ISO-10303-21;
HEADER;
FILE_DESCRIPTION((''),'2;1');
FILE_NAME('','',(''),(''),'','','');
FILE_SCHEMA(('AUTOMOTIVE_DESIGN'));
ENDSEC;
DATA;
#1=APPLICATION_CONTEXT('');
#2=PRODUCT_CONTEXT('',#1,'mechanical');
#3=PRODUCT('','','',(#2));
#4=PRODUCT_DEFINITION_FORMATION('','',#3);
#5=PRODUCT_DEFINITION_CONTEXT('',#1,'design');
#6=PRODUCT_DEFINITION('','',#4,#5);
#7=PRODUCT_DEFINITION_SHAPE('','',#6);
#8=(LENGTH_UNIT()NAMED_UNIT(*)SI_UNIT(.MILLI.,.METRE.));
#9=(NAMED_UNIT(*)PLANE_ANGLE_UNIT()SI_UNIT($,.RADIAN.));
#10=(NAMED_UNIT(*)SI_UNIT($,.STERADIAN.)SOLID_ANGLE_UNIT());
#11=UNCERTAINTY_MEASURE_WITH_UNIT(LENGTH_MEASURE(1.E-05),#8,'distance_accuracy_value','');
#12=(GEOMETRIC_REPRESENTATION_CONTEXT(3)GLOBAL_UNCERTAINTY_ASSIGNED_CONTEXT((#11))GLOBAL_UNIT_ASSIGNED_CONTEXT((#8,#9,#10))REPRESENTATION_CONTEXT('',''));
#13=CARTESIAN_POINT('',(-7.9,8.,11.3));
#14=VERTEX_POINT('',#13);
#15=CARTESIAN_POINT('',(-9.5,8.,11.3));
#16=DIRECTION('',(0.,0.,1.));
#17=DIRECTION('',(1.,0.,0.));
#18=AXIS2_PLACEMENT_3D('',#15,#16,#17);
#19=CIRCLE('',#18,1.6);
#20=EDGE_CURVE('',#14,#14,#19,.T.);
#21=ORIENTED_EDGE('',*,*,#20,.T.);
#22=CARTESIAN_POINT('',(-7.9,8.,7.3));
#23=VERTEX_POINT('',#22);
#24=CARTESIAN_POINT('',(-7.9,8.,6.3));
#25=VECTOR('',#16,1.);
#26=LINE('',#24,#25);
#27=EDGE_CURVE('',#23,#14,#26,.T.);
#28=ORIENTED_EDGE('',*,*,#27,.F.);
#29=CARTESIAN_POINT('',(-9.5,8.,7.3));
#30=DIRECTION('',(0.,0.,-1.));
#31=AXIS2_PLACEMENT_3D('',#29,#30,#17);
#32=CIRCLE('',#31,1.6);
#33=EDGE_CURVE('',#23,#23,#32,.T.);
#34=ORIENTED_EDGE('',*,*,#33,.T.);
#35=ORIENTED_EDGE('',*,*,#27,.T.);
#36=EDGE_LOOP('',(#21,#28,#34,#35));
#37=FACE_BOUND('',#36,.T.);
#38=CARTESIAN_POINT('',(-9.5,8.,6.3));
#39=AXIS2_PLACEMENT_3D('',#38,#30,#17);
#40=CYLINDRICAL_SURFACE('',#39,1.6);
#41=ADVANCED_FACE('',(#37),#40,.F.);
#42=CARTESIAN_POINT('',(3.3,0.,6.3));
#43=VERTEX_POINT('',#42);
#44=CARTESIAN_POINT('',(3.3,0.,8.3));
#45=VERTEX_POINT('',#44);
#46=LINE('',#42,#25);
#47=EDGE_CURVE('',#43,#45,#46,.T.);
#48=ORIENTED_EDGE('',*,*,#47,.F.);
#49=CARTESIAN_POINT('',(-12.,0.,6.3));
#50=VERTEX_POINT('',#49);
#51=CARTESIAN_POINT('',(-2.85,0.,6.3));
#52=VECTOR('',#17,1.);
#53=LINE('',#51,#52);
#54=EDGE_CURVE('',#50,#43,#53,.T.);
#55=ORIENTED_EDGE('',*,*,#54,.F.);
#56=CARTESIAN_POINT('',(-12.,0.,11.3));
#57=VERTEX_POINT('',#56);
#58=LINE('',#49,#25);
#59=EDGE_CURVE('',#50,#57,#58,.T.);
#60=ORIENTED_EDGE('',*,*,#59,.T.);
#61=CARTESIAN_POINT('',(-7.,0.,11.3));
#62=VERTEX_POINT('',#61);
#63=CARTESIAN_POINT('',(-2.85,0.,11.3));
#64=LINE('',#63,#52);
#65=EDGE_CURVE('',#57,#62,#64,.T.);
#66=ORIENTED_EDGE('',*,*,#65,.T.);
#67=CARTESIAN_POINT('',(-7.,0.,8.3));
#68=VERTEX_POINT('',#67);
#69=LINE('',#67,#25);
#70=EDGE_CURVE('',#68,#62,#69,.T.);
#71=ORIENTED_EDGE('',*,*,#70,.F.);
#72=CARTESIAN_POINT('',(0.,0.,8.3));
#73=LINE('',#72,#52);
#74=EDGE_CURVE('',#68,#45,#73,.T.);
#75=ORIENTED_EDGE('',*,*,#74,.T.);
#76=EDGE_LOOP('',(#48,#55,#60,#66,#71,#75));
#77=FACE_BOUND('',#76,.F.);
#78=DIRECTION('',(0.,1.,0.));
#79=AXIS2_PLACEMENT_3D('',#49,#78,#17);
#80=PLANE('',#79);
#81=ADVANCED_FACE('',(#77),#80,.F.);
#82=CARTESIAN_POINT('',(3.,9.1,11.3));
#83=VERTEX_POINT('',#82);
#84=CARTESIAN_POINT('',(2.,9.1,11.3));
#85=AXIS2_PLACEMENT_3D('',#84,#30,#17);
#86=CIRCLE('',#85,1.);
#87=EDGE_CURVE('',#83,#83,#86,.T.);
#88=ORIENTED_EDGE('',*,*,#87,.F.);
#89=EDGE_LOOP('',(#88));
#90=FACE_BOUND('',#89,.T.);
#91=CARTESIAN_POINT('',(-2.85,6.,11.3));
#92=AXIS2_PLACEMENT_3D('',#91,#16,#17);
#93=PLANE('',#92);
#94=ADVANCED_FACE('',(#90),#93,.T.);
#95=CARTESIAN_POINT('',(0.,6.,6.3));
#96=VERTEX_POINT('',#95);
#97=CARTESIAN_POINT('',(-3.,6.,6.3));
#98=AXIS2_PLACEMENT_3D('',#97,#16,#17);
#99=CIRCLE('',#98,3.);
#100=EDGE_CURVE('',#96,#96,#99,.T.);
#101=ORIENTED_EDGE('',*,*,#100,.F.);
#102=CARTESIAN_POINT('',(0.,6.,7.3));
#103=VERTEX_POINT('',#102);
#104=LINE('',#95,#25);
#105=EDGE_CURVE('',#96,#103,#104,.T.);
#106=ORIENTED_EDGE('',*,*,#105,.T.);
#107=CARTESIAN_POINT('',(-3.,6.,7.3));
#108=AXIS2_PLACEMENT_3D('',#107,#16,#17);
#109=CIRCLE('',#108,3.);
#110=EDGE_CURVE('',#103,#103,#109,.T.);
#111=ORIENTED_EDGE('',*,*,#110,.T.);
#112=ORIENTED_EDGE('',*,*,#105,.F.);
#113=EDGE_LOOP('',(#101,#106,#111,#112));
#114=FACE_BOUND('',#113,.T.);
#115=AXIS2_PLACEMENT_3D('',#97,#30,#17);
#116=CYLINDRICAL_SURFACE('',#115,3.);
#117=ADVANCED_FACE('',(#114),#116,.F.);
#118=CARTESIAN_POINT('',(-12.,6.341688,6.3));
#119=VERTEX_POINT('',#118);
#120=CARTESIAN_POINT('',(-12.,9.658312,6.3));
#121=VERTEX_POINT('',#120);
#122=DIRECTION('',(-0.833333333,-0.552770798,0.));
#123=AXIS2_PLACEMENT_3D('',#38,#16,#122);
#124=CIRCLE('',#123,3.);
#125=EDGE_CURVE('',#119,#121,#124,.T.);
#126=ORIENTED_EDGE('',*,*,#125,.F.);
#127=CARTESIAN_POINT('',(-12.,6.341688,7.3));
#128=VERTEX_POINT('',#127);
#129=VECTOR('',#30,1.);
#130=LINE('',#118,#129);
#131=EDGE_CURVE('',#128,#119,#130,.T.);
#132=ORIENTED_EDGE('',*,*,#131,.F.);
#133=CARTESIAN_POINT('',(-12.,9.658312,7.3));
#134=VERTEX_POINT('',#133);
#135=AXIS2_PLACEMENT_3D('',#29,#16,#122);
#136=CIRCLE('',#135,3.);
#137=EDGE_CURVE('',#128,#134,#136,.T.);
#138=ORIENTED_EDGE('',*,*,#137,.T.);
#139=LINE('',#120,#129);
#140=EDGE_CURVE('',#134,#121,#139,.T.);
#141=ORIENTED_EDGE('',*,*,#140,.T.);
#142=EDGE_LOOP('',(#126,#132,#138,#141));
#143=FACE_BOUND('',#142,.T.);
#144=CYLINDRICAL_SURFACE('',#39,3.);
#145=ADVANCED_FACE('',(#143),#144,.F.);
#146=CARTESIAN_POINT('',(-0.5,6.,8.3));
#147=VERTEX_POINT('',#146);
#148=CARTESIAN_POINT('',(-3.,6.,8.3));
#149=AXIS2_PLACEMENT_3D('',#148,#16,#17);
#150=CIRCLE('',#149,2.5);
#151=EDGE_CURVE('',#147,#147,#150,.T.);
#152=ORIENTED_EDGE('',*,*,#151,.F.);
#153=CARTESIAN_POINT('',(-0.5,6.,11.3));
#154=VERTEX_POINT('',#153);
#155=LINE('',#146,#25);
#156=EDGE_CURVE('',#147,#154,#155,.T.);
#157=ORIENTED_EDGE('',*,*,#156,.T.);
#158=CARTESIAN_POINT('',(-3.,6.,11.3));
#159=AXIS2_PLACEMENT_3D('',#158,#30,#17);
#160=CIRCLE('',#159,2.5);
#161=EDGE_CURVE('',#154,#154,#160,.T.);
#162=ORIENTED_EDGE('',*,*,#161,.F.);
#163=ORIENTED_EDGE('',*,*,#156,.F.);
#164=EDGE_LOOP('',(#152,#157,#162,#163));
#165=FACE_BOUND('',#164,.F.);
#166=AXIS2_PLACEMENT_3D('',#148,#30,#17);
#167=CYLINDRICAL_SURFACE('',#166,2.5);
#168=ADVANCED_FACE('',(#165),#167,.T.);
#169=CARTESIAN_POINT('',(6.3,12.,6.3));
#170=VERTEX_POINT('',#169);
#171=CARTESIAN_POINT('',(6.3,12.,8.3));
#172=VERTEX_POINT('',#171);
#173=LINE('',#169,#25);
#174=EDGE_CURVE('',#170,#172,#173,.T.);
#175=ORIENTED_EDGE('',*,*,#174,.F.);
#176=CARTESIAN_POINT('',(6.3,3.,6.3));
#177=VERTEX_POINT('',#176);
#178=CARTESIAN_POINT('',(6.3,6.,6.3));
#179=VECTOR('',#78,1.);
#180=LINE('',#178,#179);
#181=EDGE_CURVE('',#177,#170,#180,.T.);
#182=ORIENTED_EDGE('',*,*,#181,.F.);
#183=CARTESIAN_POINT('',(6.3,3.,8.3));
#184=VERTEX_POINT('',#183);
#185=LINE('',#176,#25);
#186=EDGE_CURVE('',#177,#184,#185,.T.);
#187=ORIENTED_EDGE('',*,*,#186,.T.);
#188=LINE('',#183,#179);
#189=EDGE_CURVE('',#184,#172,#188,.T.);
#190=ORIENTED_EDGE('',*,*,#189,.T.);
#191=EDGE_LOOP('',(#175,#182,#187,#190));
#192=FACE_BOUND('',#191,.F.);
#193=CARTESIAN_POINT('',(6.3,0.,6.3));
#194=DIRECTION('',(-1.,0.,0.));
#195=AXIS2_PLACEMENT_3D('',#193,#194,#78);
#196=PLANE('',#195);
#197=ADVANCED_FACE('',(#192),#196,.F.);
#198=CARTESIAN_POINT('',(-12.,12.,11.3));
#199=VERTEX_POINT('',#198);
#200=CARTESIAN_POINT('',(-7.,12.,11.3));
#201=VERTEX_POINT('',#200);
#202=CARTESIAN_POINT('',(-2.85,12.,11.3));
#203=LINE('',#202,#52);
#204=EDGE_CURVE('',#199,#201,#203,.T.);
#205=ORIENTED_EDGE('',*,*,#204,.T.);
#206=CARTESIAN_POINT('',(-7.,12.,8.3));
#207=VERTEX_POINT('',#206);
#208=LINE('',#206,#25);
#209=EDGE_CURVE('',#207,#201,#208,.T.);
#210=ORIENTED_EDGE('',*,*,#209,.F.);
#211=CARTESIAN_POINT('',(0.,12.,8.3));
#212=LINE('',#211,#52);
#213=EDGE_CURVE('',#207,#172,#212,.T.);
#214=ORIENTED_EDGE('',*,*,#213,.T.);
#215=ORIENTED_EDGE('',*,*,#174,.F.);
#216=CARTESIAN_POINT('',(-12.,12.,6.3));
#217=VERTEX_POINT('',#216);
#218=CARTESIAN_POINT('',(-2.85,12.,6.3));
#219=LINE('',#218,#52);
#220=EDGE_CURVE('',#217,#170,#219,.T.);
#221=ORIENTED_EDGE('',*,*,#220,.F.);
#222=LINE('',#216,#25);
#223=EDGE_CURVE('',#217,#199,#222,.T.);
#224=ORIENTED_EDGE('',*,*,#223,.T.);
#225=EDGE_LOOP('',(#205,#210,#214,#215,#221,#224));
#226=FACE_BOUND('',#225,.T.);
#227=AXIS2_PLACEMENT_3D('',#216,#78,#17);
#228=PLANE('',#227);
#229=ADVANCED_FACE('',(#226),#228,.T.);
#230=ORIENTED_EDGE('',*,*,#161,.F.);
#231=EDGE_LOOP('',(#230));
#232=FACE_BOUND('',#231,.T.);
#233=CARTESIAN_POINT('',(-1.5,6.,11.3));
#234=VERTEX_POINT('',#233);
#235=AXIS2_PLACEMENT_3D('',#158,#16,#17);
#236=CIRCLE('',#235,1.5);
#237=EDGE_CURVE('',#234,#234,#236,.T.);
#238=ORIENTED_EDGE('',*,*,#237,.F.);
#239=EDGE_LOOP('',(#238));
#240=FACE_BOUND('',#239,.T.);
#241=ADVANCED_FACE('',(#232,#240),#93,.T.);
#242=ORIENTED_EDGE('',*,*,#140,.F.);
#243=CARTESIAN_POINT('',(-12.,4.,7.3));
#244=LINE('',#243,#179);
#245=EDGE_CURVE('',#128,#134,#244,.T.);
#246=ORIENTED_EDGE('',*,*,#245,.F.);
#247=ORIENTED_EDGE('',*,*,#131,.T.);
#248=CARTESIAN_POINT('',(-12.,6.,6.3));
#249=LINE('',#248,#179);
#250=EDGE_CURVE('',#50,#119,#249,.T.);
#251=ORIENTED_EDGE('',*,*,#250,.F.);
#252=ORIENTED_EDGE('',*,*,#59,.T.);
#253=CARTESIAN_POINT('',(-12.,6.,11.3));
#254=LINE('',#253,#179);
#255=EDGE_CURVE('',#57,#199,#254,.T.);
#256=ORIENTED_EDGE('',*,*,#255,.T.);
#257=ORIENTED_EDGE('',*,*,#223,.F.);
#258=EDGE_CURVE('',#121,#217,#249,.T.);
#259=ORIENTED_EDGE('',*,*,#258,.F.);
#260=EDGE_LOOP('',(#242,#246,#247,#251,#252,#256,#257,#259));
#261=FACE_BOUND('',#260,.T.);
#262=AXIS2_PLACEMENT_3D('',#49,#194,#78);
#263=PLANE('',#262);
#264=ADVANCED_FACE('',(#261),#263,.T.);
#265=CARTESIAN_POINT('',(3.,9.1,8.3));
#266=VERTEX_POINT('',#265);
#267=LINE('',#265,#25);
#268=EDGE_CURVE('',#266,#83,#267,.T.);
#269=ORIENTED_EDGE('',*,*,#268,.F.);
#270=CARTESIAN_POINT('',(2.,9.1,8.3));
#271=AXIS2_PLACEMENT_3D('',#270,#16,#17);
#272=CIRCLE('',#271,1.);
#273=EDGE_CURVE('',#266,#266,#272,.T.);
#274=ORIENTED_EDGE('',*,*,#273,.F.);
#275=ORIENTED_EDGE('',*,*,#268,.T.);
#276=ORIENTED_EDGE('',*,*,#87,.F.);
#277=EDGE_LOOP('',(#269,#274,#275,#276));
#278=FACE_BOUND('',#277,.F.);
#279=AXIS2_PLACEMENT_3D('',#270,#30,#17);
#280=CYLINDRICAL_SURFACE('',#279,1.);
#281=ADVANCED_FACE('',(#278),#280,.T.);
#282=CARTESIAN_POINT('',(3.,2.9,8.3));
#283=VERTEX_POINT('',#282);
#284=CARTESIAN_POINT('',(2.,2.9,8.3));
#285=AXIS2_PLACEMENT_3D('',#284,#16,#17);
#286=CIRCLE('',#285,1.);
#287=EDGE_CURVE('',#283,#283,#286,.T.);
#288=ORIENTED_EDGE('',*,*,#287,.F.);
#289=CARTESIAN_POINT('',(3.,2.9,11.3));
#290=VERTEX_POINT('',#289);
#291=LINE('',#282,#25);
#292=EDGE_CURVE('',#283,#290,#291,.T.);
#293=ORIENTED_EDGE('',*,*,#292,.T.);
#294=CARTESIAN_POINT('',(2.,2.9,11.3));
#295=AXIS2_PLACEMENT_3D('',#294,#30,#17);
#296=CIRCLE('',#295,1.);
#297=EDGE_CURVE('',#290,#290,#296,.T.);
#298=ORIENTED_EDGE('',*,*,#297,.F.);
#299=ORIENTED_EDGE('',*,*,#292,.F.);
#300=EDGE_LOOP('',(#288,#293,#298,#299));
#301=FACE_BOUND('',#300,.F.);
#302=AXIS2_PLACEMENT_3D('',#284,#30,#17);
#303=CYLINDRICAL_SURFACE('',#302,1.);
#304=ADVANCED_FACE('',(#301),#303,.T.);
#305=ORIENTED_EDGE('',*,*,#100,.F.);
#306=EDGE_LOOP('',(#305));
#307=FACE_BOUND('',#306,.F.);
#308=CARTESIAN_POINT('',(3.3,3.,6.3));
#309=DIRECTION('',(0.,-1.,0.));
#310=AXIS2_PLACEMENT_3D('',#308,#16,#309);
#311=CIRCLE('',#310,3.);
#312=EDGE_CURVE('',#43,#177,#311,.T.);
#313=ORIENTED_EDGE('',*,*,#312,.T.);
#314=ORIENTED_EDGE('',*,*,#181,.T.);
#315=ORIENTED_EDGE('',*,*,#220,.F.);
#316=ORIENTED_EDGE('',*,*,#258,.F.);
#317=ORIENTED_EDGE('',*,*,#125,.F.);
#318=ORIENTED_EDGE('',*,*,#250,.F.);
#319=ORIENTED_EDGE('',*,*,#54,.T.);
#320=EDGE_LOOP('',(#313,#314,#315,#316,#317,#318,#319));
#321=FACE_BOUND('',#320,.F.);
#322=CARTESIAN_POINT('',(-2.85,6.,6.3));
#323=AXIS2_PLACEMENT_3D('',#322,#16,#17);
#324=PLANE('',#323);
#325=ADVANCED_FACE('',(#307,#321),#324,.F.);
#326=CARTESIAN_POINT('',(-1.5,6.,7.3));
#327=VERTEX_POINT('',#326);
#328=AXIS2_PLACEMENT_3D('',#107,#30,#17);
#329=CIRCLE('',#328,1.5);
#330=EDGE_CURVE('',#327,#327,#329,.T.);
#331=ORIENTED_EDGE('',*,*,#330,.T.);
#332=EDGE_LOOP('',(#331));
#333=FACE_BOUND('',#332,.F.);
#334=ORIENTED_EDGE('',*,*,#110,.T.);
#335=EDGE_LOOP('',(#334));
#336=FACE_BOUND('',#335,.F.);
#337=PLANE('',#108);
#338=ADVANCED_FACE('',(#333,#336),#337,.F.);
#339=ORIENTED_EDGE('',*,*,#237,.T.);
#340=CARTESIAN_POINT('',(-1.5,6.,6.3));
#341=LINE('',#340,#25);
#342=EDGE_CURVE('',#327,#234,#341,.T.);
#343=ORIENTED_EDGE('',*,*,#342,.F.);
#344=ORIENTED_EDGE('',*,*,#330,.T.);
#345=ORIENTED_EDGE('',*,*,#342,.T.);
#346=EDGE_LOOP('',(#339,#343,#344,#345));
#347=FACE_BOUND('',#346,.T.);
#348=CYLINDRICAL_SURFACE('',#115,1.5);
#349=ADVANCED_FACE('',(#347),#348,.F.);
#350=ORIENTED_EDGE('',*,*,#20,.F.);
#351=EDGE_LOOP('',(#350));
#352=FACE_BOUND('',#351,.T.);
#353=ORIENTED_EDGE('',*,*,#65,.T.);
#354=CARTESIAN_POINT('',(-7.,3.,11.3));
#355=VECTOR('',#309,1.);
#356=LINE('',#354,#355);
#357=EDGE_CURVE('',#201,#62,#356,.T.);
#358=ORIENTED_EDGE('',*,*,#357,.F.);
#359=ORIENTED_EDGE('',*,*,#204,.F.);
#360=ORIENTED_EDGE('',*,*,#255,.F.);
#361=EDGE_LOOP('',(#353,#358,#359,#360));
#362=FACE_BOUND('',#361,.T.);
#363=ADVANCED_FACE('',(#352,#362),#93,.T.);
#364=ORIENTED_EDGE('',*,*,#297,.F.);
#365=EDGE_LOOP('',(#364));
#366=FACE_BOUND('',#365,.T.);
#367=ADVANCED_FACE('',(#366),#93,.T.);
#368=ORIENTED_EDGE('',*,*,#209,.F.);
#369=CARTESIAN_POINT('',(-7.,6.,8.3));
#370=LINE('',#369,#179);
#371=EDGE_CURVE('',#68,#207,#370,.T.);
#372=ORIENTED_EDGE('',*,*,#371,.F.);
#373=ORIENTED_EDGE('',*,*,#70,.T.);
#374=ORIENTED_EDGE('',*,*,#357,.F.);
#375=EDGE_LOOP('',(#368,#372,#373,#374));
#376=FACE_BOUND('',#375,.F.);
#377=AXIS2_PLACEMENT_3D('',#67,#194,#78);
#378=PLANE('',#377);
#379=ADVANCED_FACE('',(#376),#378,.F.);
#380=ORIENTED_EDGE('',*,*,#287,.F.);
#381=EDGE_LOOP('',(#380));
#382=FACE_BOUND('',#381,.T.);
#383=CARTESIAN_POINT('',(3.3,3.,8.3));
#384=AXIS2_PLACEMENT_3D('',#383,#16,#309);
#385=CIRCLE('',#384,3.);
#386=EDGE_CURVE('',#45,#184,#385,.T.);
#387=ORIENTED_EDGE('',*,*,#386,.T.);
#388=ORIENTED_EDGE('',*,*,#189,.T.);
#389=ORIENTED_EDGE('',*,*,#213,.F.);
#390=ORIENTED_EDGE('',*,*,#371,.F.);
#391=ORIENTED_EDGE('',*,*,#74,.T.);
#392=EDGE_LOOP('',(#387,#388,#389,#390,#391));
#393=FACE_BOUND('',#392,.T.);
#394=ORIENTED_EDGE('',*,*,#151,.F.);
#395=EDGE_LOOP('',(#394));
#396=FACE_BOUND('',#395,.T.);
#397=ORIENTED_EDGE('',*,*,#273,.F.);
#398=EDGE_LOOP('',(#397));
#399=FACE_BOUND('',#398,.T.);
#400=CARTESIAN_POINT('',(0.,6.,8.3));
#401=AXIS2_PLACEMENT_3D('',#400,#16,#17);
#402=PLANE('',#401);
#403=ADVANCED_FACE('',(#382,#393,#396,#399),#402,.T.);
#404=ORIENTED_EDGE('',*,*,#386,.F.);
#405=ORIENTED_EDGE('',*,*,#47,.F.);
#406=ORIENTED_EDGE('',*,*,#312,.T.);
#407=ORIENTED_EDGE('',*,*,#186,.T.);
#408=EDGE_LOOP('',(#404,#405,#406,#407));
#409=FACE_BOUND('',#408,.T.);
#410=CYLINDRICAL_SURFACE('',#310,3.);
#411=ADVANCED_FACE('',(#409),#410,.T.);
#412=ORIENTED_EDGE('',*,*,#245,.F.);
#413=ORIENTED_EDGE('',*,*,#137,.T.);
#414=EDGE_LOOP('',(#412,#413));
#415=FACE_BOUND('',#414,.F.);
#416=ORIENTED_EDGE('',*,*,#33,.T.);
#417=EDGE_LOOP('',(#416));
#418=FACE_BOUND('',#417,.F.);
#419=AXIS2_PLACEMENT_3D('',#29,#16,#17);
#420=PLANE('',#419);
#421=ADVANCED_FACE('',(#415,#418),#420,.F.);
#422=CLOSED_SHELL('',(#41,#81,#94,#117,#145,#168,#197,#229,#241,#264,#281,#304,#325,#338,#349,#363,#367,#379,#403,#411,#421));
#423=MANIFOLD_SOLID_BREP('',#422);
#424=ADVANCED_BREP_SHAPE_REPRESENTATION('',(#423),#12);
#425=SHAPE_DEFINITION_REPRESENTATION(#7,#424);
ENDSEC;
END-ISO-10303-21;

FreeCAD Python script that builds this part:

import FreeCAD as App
import Part
import Sketcher
Q = App.Units.Quantity


def edges_at(feature, points):
    """Names of the edges that pass closest to the given points."""
    edges = feature.Shape.Edges
    near = lambda p: min(range(len(edges)), key=lambda i: edges[i].distToShape(Part.Vertex(*p))[0])
    return sorted({f"Edge{near(p) + 1}" for p in points})

doc = App.newDocument("Part")
body = doc.addObject("PartDesign::Body", "Body")

# Sketch on XY plane
sketch1 = doc.addObject("Sketcher::SketchObject", "Sketch")
body.addObject(sketch1)
sketch1.AttachmentSupport = (doc.XY_Plane, [""])
sketch1.MapMode = "FlatFace"
sketch1.addGeometry([
    Part.LineSegment(App.Vector(0, 12, 0), App.Vector(0, 0, 0)),  # 0
    Part.LineSegment(App.Vector(0, 0, 0), App.Vector(18.3, 0, 0)),  # 1
    Part.LineSegment(App.Vector(18.3, 0, 0), App.Vector(18.3, 12, 0)),  # 2
    Part.LineSegment(App.Vector(18.3, 12, 0), App.Vector(0, 12, 0)),  # 3
    Part.Circle(App.Vector(9, 6, 0), App.Vector(0, 0, 1), 1.5),  # 4
    Part.Circle(App.Vector(2.5, 8, 0), App.Vector(0, 0, 1), 1.6),  # 5
], False)
sketch1.addConstraint([
    Sketcher.Constraint("Coincident", 0, 2, 1, 1),
    Sketcher.Constraint("Coincident", 1, 2, 2, 1),
    Sketcher.Constraint("Coincident", 2, 2, 3, 1),
    Sketcher.Constraint("Coincident", 3, 2, 0, 1),
    Sketcher.Constraint("Vertical", 0),
    Sketcher.Constraint("Horizontal", 1),
    Sketcher.Constraint("Vertical", 2),
    Sketcher.Constraint("Horizontal", 3),
    Sketcher.Constraint("Coincident", 0, 2, -1, 1),
    Sketcher.Constraint("Diameter", 4, Q("3 mm")),
    Sketcher.Constraint("Diameter", 5, Q("3.2 mm")),
    Sketcher.Constraint("DistanceY", 0, 2, 0, 1, Q("12 mm")),
    Sketcher.Constraint("DistanceX", 1, 1, 1, 2, Q("18.3 mm")),
    Sketcher.Constraint("DistanceX", -1, 1, 4, 3, Q("9 mm")),
    Sketcher.Constraint("DistanceY", -1, 1, 4, 3, Q("6 mm")),
    Sketcher.Constraint("DistanceY", -1, 1, 5, 3, Q("8 mm")),
    Sketcher.Constraint("DistanceX", -1, 1, 5, 3, Q("2.5 mm")),
])
pad1 = doc.addObject("PartDesign::Pad", "Pad")
body.addObject(pad1)
pad1.Profile = sketch1
pad1.Length = 5

# Sketch on XY plane
sketch2 = doc.addObject("Sketcher::SketchObject", "Sketch001")
body.addObject(sketch2)
sketch2.AttachmentSupport = (doc.XY_Plane, [""])
sketch2.MapMode = "FlatFace"
sketch2.AttachmentOffset = App.Placement(App.Vector(0, 0, 2), App.Rotation())
sketch2.addGeometry([
    Part.LineSegment(App.Vector(5, 12, 0), App.Vector(5, 0, 0)),  # 0
    Part.LineSegment(App.Vector(5, 0, 0), App.Vector(19, 0, 0)),  # 1
    Part.LineSegment(App.Vector(19, 0, 0), App.Vector(19, 12, 0)),  # 2
    Part.LineSegment(App.Vector(19, 12, 0), App.Vector(5, 12, 0)),  # 3
    Part.Circle(App.Vector(14, 2.9, 0), App.Vector(0, 0, 1), 1),  # 4
    Part.Circle(App.Vector(9, 6, 0), App.Vector(0, 0, 1), 2.5),  # 5
    Part.Circle(App.Vector(14, 9.1, 0), App.Vector(0, 0, 1), 1),  # 6
], False)
sketch2.addConstraint([
    Sketcher.Constraint("Coincident", 0, 2, 1, 1),
    Sketcher.Constraint("Coincident", 1, 2, 2, 1),
    Sketcher.Constraint("Coincident", 2, 2, 3, 1),
    Sketcher.Constraint("Coincident", 3, 2, 0, 1),
    Sketcher.Constraint("Vertical", 0),
    Sketcher.Constraint("Horizontal", 1),
    Sketcher.Constraint("Vertical", 2),
    Sketcher.Constraint("Horizontal", 3),
    Sketcher.Constraint("Equal", 4, 6),
    Sketcher.Constraint("PointOnObject", 0, 2, -1),
    Sketcher.Constraint("Vertical", 4, 3, 6, 3),
    Sketcher.Constraint("Diameter", 4, Q("2 mm")),
    Sketcher.Constraint("Diameter", 5, Q("5 mm")),
    Sketcher.Constraint("DistanceX", 1, 1, 1, 2, Q("14 mm")),
    Sketcher.Constraint("DistanceY", 0, 2, 0, 1, Q("12 mm")),
    Sketcher.Constraint("DistanceX", -1, 1, 4, 3, Q("14 mm")),
    Sketcher.Constraint("DistanceX", -1, 1, 5, 3, Q("9 mm")),
    Sketcher.Constraint("DistanceY", -1, 1, 5, 3, Q("6 mm")),
    Sketcher.Constraint("DistanceX", -1, 1, 0, 2, Q("5 mm")),
    Sketcher.Constraint("DistanceY", -1, 1, 4, 3, Q("2.9 mm")),
    Sketcher.Constraint("DistanceY", -1, 1, 6, 3, Q("9.1 mm")),
])
pocket1 = doc.addObject("PartDesign::Pocket", "Pocket")
body.addObject(pocket1)
pocket1.Profile = sketch2
pocket1.Type = "ThroughAll"
pocket1.Reversed = True

# Sketch on XY plane
sketch3 = doc.addObject("Sketcher::SketchObject", "Sketch002")
body.addObject(sketch3)
sketch3.AttachmentSupport = (doc.XY_Plane, [""])
sketch3.MapMode = "FlatFace"
sketch3.addGeometry([
    Part.Circle(App.Vector(2.5, 8, 0), App.Vector(0, 0, 1), 3),
    Part.Circle(App.Vector(9, 6, 0), App.Vector(0, 0, 1), 3),
], False)
sketch3.addConstraint([
    Sketcher.Constraint("Equal", 0, 1),
    Sketcher.Constraint("Diameter", 0, Q("6 mm")),
    Sketcher.Constraint("DistanceY", -1, 1, 0, 3, Q("8 mm")),
    Sketcher.Constraint("DistanceX", -1, 1, 1, 3, Q("9 mm")),
    Sketcher.Constraint("DistanceY", -1, 1, 1, 3, Q("6 mm")),
    Sketcher.Constraint("DistanceX", -1, 1, 0, 3, Q("2.5 mm")),
])
pocket2 = doc.addObject("PartDesign::Pocket", "Pocket001")
body.addObject(pocket2)
pocket2.Profile = sketch3
pocket2.Length = 1
pocket2.Reversed = True
doc.recompute()

fillet = doc.addObject("PartDesign::Fillet", "Fillet")
body.addObject(fillet)
fillet.Base = (pocket2, edges_at(pocket2, [(18.3, 0, 1)]))
fillet.Radius = 3
body2 = doc.addObject("PartDesign::Body", "Body001")
doc.recompute()

body.Placement = App.Placement(App.Vector(-12, 0, 6.3), App.Rotation(App.Vector(0, 0, 1), 0))
boolean = doc.addObject("PartDesign::Boolean", "Boolean")
body2.addObject(boolean)
boolean.Type = "Fuse"
boolean.addObjects([body])

doc.recompute()
